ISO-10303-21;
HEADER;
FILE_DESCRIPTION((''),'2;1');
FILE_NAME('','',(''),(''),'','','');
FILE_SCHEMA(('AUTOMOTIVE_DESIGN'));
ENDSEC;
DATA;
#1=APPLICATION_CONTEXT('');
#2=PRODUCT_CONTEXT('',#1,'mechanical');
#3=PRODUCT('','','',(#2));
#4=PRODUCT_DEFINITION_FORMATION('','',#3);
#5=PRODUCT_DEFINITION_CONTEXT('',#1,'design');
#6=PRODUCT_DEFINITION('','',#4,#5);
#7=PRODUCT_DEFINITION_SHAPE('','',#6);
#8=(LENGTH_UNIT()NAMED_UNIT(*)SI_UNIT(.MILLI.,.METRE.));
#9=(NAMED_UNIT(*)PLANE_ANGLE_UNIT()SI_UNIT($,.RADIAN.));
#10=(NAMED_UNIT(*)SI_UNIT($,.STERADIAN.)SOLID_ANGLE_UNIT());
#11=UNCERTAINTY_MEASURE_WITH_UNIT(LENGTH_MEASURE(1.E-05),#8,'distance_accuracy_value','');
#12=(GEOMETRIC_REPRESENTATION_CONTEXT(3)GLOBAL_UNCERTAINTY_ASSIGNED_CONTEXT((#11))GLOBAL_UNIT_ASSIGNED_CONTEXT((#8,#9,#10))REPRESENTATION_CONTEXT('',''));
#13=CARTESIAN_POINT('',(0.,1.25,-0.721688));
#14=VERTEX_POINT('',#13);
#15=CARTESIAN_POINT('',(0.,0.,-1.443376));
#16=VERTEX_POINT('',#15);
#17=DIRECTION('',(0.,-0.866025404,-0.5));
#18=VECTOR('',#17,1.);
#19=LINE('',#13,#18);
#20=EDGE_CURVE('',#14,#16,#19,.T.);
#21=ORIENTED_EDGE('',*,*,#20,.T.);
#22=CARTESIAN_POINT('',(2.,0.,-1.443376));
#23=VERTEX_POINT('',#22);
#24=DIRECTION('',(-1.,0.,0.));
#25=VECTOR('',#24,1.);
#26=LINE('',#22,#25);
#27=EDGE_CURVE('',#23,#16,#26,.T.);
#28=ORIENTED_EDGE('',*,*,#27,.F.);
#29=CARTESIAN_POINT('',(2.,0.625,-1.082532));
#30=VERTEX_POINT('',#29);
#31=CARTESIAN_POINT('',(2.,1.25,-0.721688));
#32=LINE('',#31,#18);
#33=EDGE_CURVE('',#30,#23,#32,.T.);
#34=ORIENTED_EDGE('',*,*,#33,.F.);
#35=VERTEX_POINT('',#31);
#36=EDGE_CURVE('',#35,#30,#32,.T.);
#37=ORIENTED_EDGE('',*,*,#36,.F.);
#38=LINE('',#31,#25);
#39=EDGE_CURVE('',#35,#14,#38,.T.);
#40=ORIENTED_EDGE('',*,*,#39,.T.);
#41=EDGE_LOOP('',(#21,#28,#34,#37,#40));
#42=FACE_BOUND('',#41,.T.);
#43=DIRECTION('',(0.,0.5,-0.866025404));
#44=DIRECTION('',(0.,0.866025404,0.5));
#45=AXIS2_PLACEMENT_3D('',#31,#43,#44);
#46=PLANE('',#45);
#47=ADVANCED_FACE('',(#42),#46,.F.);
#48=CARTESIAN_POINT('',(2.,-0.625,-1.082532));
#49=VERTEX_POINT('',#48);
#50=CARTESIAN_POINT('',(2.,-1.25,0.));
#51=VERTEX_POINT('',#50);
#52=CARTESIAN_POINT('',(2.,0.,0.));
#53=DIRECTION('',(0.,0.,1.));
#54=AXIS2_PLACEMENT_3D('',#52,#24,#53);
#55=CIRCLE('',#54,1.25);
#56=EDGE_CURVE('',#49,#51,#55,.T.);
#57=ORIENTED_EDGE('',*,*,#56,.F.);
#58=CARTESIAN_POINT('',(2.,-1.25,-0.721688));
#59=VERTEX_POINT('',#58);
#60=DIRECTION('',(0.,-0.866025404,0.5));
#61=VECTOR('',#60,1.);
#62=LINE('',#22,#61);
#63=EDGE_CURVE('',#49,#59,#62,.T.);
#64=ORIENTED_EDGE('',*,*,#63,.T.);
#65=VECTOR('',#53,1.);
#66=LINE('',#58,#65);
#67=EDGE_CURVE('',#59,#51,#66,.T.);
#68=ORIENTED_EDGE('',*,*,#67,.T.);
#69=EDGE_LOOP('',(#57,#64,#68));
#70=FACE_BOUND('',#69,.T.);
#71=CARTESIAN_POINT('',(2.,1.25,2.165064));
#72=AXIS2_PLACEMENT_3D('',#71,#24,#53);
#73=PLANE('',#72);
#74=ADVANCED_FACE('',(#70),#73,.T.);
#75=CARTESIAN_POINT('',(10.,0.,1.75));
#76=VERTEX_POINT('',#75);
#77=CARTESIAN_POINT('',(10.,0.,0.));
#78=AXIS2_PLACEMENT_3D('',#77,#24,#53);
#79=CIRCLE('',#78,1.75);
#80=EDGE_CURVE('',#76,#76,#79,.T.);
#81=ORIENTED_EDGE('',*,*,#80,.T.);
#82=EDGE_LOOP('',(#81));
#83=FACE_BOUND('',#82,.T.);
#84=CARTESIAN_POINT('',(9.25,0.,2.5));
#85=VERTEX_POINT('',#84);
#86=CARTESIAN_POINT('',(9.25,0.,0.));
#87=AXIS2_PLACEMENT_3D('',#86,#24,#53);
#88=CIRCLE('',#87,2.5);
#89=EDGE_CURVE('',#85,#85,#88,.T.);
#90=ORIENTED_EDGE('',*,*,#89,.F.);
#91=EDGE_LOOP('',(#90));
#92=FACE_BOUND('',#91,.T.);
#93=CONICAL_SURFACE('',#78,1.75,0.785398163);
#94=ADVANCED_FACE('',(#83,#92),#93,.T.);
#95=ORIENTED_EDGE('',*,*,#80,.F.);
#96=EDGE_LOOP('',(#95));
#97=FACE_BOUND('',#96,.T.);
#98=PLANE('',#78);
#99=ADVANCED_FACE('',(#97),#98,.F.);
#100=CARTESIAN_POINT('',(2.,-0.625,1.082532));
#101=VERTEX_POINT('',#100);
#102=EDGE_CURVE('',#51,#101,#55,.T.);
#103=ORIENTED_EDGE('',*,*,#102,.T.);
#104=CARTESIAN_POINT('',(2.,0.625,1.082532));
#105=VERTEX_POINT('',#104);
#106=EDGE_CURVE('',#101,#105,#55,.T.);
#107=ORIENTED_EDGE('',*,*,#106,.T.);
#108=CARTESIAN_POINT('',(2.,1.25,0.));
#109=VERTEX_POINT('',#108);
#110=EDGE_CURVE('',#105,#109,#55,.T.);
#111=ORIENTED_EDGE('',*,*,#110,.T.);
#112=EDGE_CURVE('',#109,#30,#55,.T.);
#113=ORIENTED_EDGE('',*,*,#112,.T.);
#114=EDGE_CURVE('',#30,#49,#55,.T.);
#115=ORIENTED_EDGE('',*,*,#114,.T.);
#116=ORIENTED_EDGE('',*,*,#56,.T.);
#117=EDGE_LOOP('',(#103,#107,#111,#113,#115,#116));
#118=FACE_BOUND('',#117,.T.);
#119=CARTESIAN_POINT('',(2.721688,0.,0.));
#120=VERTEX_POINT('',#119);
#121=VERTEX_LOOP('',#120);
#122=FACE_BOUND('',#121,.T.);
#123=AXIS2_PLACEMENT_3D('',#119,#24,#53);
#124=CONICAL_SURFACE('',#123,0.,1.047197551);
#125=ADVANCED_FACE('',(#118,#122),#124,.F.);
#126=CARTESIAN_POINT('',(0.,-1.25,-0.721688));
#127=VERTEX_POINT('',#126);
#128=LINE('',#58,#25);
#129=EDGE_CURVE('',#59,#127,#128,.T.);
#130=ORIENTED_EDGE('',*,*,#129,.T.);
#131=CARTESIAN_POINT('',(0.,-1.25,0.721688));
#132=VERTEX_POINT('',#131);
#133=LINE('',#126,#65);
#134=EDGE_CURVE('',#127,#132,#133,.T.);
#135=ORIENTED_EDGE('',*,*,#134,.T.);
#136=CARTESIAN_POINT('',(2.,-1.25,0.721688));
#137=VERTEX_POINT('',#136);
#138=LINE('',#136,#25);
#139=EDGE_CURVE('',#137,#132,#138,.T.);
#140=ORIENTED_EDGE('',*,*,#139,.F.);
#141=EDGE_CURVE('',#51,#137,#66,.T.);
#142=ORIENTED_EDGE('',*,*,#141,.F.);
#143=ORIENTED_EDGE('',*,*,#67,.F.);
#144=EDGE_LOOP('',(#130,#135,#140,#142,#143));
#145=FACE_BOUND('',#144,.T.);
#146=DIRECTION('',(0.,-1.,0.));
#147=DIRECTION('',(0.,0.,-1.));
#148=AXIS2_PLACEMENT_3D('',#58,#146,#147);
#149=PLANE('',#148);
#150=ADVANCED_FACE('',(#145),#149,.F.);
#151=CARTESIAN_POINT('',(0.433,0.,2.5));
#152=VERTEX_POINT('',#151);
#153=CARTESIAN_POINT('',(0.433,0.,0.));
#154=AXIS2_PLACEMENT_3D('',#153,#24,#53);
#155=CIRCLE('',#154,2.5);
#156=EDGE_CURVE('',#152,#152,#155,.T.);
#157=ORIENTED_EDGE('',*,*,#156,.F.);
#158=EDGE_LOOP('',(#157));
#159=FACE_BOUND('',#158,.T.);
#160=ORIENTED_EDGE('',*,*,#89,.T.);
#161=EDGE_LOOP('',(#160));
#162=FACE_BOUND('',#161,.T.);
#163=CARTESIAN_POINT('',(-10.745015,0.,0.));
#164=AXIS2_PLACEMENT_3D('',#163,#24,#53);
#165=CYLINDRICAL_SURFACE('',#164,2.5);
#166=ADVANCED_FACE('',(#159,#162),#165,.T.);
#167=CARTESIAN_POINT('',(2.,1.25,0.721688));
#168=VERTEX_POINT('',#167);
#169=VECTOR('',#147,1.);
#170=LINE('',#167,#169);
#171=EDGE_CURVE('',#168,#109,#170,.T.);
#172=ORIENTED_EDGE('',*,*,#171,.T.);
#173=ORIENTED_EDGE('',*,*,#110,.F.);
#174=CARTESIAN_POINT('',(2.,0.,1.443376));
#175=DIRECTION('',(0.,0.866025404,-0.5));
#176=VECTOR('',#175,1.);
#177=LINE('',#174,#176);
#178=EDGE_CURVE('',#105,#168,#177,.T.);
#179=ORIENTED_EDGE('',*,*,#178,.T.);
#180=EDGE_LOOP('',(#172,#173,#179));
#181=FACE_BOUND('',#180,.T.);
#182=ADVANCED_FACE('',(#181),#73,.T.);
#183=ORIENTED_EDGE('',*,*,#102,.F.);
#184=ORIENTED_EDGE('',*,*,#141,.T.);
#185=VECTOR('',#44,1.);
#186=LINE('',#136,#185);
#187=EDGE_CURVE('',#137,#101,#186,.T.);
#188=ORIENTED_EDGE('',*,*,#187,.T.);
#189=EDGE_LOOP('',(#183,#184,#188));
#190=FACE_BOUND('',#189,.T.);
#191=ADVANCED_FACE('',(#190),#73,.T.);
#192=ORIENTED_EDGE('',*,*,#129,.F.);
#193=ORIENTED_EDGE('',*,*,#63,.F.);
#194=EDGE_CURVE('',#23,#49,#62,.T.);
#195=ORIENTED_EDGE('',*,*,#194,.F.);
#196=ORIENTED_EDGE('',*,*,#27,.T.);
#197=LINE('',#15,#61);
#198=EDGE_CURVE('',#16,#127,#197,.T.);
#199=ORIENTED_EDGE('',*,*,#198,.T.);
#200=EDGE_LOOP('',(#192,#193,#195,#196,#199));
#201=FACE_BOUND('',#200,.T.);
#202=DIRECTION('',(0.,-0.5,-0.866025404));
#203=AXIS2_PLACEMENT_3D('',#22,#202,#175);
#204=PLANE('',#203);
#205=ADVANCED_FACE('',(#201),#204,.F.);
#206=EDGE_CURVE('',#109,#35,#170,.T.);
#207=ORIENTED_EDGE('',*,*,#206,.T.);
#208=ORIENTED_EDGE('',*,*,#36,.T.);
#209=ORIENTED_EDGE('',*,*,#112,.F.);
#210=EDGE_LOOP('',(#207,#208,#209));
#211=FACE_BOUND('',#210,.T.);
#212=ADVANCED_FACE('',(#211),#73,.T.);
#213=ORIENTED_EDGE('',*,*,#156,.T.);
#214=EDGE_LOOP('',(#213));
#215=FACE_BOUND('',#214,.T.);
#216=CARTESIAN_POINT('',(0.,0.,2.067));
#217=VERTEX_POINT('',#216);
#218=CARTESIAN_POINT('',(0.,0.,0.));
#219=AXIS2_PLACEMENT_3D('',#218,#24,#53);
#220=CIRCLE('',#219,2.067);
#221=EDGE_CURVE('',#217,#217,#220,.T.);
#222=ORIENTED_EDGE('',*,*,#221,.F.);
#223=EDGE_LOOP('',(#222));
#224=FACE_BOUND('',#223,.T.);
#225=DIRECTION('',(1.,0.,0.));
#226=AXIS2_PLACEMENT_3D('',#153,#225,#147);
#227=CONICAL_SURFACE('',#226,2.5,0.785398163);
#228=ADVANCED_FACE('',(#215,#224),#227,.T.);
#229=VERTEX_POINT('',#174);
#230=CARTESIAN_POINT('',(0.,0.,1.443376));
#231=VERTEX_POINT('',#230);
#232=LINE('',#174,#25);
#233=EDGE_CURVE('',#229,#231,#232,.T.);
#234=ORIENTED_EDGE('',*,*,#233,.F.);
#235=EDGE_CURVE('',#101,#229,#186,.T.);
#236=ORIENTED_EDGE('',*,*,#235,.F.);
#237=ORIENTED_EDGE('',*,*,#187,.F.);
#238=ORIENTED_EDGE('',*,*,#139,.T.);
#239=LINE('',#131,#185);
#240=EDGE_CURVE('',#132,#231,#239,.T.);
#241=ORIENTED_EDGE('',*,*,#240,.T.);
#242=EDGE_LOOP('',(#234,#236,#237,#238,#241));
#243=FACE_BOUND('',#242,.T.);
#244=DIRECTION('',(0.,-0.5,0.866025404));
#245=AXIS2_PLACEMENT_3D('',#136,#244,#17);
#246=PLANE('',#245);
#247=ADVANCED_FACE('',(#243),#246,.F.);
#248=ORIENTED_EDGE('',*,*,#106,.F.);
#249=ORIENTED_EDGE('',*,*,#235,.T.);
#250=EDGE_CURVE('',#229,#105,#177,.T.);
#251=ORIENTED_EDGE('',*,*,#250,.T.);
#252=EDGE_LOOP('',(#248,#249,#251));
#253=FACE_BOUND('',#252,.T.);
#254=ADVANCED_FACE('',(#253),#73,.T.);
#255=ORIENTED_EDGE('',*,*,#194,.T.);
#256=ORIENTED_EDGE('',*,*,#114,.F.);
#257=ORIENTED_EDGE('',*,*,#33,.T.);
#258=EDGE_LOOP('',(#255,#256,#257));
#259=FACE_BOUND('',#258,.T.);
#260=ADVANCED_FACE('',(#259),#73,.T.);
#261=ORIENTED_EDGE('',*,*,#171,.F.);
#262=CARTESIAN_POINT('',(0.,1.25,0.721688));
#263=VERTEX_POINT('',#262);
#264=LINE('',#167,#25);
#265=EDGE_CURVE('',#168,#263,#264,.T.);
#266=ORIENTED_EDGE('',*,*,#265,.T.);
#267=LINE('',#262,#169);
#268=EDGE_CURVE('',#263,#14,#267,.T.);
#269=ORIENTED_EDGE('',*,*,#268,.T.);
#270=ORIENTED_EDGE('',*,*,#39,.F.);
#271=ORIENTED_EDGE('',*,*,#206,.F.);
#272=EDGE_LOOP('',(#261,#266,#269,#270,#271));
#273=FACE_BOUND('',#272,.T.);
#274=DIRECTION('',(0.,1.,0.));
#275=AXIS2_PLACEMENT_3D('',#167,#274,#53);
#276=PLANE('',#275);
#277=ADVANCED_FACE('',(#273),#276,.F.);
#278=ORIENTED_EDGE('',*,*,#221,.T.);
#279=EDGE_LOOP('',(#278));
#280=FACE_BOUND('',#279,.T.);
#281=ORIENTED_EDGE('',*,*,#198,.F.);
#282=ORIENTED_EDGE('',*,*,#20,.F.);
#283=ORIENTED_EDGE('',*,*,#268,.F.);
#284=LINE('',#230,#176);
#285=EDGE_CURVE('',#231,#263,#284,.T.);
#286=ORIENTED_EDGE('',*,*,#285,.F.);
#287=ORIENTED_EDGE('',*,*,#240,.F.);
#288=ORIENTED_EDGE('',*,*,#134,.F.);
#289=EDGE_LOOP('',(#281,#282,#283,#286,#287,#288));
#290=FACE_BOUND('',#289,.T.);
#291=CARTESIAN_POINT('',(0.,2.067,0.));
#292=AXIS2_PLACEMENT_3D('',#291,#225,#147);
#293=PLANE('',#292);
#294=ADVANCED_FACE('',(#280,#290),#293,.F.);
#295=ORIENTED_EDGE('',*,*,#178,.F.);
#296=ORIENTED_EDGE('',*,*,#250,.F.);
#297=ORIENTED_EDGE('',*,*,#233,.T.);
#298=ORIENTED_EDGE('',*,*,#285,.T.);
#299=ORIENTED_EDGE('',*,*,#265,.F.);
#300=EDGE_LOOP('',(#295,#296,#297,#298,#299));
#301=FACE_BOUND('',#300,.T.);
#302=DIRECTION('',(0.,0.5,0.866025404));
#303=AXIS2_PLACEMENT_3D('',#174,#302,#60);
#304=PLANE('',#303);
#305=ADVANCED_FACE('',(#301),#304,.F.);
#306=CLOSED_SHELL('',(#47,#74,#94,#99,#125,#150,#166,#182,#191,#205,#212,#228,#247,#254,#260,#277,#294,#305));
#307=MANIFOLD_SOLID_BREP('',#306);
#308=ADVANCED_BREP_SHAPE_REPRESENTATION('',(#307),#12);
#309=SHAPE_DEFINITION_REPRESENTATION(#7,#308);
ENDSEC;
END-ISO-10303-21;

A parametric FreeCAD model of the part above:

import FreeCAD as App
import Part
import Sketcher
from FreeCAD import Vector
Q = App.Units.Quantity


def add_polygon(sketch, points):
    """Adds a closed chain of lines whose ends are joined by coincident constraints."""
    first, n = sketch.GeometryCount, len(points)
    for a, b in zip(points, points[1:] + points[:1]):
        sketch.addGeometry(Part.LineSegment(App.Vector(*a, 0), App.Vector(*b, 0)), False)
    for i in range(n):
        sketch.addConstraint(Sketcher.Constraint("Coincident", first + i, 2, first + (i + 1) % n, 1))

doc = App.newDocument("Part")
body = doc.addObject("PartDesign::Body", "Body")

sketch1 = body.newObject("Sketcher::SketchObject", "Sketch")
sketch1.AttachmentSupport = (doc.getObject("XY_Plane"), [""])
sketch1.MapMode = "FlatFace"
add_polygon(sketch1, [(0, 0), (10, 0), (10, 1.75), (9.25, 2.5), (0.433, 2.5), (0, 2.067)])
sketch1.addConstraint([
    Sketcher.Constraint("Horizontal", 0),
    Sketcher.Constraint("Vertical", 1),
    Sketcher.Constraint("Horizontal", 3),
    Sketcher.Constraint("Vertical", 5),
    Sketcher.Constraint("Coincident", 5, 2, -1, 1),
    Sketcher.Constraint("Perpendicular", 2, 4),
    Sketcher.Constraint("DistanceX", 0, 1, 0, 2, 10.0),
    Sketcher.Constraint("Angle", 2, Q("135 deg")),
    Sketcher.Constraint("DistanceY", 1, 1, 1, 2, 1.75),
    Sketcher.Constraint("DistanceY", -1, 1, 2, 2, 2.5),
    Sketcher.Constraint("DistanceX", 3, 2, 3, 1, 8.817),
])
revolution = body.newObject("PartDesign::Revolution", "Revolution")
revolution.Profile = sketch1
revolution.ReferenceAxis = (sketch1, ["H_Axis"])
revolution.Angle = 360

sketch2 = body.newObject("Sketcher::SketchObject", "Sketch001")
sketch2.AttachmentSupport = (doc.getObject("YZ_Plane"), [""])
sketch2.MapMode = "FlatFace"
add_polygon(sketch2, [(0, 1.443376), (1.25, 0.721688), (1.25, -0.721688), (0, -1.443376), (-1.25, -0.721688), (-1.25, 0.721688)])
sketch2.addConstraint([
    Sketcher.Constraint("Vertical", 1),
    Sketcher.Constraint("Vertical", 4),
    Sketcher.Constraint("Symmetric", 0, 2, 3, 2, -1, 1),
    Sketcher.Constraint("Symmetric", 2, 2, 5, 2, -1, 1),
    Sketcher.Constraint("PointOnObject", 2, 2, -2),
    Sketcher.Constraint("Parallel", 2, 5),
    Sketcher.Constraint("Horizontal", 1, 2, 3, 2),
    Sketcher.Constraint("Angle", 0, Q("-30 deg")),
    Sketcher.Constraint("DistanceX", 3, 2, 1, 2, 2.5),
    Sketcher.Constraint("DistanceY", 1, 2, 1, 1, 1.443376),
])
pocket1 = body.newObject("PartDesign::Pocket", "Pocket")
pocket1.Profile = sketch2
pocket1.Length = 2
pocket1.Reversed = True

sketch3 = body.newObject("Sketcher::SketchObject", "Sketch002")
sketch3.AttachmentSupport = (doc.getObject("XY_Plane"), [""])
sketch3.MapMode = "FlatFace"
add_polygon(sketch3, [(2.721688, 0), (2, 1.25), (2, 0)])
sketch3.addConstraint([
    Sketcher.Constraint("Vertical", 1),
    Sketcher.Constraint("Horizontal", 2),
    Sketcher.Constraint("PointOnObject", 1, 2, -1),
    Sketcher.Constraint("Angle", 0, Q("120 deg")),
    Sketcher.Constraint("DistanceX", -1, 1, 0, 2, 2.0),
    Sketcher.Constraint("DistanceY", 1, 2, 1, 1, 1.25),
])
groove = body.newObject("PartDesign::Groove", "Groove")
groove.Profile = sketch3
groove.ReferenceAxis = (sketch3, ["H_Axis"])
groove.Angle = 360

doc.recompute()
